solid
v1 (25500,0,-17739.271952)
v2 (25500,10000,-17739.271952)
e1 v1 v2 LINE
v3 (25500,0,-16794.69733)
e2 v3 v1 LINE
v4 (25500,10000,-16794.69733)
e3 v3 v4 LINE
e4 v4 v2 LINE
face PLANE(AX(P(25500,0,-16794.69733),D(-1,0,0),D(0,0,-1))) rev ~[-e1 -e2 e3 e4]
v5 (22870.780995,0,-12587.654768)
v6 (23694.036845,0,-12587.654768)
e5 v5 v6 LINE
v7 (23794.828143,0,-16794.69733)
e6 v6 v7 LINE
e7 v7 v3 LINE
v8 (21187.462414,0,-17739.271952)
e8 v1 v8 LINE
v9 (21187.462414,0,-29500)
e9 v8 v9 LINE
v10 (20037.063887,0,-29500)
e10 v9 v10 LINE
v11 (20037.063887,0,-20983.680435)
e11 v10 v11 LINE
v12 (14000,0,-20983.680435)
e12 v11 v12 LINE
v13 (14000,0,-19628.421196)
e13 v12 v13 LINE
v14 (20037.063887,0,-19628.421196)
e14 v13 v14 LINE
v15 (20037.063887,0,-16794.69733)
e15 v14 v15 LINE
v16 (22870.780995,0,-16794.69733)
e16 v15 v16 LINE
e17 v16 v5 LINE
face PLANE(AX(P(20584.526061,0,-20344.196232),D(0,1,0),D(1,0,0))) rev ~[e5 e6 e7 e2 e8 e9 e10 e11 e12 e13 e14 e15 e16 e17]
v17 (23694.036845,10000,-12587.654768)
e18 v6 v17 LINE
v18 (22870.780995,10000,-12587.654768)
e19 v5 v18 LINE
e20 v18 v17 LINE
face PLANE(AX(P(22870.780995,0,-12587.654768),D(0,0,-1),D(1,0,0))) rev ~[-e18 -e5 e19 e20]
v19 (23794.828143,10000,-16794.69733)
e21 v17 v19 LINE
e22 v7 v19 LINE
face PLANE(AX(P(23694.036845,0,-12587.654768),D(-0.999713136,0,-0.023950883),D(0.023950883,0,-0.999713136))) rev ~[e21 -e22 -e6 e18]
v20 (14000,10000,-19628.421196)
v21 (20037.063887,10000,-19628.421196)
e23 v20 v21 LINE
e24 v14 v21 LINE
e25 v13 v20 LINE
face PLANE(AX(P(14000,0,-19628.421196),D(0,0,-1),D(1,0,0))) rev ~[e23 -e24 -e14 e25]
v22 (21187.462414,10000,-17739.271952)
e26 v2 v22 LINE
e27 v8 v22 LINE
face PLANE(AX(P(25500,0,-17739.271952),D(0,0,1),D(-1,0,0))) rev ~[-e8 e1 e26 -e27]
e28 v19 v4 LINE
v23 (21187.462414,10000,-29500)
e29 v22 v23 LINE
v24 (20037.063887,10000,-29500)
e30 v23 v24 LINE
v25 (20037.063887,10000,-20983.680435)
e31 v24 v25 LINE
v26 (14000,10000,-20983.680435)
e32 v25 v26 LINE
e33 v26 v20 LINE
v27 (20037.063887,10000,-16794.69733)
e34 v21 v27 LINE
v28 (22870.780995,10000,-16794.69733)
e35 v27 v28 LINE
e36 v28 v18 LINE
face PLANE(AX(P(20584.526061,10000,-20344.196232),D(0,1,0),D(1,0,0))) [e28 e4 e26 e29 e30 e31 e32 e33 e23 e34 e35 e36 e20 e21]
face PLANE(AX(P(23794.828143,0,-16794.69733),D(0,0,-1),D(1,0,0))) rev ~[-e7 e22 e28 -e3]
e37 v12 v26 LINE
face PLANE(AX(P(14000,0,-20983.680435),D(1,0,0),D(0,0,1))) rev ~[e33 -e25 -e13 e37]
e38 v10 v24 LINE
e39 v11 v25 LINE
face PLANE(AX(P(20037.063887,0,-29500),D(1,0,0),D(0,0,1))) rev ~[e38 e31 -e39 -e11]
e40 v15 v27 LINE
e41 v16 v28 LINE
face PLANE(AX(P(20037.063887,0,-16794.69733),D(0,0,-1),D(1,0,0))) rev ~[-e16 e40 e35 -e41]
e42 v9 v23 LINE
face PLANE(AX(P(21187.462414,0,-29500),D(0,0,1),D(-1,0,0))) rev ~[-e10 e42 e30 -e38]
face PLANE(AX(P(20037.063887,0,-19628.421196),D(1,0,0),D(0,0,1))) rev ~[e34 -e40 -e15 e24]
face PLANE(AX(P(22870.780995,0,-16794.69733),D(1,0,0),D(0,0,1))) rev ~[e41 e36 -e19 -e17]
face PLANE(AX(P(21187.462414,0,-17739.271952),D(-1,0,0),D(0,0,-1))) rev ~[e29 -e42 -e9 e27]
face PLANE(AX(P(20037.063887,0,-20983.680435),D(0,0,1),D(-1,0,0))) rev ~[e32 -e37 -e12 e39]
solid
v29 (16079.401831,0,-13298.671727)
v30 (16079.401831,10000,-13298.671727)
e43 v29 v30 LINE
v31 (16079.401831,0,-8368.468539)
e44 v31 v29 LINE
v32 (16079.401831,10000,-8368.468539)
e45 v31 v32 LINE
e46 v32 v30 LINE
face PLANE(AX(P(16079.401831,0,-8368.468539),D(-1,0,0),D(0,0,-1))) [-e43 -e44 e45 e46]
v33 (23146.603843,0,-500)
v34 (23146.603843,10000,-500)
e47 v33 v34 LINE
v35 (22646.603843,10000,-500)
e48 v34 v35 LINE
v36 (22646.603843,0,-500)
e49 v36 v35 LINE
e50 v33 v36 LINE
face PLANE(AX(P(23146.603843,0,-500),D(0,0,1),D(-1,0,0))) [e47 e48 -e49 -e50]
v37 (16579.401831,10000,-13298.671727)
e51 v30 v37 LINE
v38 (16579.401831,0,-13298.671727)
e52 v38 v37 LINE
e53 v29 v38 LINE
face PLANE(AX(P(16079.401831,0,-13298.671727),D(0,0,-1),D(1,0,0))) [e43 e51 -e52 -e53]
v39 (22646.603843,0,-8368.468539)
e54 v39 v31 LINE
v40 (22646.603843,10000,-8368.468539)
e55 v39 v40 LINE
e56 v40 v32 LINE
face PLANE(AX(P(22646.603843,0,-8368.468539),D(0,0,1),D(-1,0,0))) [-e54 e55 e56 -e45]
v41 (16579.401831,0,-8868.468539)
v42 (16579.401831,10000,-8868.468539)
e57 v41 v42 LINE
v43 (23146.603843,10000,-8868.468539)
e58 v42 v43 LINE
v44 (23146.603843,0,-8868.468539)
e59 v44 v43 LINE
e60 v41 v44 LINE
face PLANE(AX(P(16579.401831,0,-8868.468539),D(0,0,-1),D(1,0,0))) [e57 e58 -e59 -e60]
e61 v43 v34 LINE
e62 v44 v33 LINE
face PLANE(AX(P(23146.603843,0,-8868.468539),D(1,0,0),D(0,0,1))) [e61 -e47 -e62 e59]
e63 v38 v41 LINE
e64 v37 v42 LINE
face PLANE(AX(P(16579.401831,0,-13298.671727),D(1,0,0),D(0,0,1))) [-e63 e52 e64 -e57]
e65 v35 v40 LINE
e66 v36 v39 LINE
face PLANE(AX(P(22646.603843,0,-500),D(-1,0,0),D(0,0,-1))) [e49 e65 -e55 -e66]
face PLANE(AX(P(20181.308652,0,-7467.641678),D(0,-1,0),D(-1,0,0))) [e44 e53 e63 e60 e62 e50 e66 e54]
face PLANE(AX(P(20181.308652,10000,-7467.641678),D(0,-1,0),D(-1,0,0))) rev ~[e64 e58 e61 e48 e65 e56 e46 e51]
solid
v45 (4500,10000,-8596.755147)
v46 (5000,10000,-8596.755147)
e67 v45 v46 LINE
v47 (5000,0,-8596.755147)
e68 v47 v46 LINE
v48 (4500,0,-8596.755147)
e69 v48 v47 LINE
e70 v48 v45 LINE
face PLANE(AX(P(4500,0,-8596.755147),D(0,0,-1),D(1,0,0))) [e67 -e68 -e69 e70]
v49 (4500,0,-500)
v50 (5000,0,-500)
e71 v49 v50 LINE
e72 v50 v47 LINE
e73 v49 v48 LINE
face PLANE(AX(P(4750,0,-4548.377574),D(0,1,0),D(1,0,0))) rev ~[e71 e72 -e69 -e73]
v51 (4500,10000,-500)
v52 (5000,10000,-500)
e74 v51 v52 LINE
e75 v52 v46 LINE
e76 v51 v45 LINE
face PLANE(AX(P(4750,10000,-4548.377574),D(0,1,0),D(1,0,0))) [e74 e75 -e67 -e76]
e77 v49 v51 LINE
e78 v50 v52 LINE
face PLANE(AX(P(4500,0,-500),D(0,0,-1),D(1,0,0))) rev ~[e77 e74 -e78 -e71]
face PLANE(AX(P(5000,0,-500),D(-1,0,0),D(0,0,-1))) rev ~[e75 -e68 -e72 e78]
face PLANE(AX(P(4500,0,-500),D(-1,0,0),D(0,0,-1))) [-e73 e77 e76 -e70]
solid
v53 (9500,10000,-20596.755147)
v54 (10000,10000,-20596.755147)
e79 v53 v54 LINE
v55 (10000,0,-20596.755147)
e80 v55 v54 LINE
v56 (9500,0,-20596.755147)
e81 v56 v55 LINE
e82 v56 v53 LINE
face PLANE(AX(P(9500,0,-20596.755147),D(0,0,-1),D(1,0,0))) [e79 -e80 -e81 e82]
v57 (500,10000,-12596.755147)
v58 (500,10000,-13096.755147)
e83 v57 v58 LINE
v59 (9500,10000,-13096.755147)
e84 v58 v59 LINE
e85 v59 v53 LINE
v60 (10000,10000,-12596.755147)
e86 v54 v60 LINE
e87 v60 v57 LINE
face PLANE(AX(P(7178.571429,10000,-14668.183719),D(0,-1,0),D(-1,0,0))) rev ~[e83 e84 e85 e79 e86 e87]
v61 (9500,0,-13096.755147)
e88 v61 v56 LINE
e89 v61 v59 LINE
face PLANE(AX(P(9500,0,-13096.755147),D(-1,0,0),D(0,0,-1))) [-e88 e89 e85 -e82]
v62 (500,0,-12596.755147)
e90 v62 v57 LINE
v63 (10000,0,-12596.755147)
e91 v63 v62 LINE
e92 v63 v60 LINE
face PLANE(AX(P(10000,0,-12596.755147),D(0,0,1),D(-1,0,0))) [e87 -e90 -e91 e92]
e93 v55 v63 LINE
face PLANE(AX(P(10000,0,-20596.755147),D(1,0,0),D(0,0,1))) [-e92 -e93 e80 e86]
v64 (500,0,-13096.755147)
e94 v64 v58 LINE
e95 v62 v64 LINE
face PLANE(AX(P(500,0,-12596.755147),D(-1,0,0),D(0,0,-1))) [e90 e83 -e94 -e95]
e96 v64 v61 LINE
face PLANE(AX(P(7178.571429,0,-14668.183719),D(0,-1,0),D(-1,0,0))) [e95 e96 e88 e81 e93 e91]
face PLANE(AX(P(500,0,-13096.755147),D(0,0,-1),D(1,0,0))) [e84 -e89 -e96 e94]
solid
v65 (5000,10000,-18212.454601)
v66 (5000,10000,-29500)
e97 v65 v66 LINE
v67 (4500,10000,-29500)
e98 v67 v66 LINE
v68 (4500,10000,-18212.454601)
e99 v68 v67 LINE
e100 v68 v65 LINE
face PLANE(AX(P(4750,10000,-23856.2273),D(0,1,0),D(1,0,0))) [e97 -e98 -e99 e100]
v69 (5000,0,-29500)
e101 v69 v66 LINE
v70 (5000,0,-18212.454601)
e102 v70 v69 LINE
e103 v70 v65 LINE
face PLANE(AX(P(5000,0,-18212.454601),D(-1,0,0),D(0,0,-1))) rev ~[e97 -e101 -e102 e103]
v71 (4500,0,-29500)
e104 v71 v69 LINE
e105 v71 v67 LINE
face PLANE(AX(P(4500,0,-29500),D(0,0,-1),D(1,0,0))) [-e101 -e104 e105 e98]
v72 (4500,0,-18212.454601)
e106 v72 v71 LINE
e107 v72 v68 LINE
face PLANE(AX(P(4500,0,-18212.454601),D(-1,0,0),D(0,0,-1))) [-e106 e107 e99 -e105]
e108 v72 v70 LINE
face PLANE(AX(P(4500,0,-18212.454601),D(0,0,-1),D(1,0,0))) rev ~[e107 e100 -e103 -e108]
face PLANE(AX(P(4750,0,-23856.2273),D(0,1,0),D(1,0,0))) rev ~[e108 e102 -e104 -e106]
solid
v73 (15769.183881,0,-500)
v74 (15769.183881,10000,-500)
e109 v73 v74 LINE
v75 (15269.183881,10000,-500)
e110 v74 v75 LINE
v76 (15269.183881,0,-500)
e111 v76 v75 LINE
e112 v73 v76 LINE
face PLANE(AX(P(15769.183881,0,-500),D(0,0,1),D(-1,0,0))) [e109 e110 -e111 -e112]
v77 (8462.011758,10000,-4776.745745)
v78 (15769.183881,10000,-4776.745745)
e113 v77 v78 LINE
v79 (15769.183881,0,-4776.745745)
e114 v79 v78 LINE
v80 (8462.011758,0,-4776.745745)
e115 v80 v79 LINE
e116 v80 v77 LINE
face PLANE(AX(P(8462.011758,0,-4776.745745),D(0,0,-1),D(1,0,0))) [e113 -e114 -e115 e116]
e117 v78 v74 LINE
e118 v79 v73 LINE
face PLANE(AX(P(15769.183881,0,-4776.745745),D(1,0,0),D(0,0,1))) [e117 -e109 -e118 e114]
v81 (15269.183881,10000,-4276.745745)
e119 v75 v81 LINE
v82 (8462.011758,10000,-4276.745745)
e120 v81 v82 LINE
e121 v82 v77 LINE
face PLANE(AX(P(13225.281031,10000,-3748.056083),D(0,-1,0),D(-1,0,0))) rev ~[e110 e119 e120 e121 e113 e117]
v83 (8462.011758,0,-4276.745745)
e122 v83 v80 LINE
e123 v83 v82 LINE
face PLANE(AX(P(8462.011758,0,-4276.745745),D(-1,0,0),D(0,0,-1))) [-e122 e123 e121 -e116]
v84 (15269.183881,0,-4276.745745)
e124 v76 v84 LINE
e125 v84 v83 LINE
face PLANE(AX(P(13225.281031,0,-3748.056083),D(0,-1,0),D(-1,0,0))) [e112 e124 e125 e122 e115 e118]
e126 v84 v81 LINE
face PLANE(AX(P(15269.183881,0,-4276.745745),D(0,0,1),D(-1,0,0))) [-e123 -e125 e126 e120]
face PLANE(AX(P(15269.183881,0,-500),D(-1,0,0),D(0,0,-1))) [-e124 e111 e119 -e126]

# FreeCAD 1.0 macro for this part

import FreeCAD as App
import Part
import Sketcher
Q = App.Units.Quantity


def add_polygon(sketch, points):
    """Adds a closed chain of lines whose ends are joined by coincident constraints."""
    first, n = sketch.GeometryCount, len(points)
    for a, b in zip(points, points[1:] + points[:1]):
        sketch.addGeometry(Part.LineSegment(App.Vector(*a, 0), App.Vector(*b, 0)), False)
    for i in range(n):
        sketch.addConstraint(Sketcher.Constraint("Coincident", first + i, 2, first + (i + 1) % n, 1))

doc = App.newDocument("Part")
body = doc.addObject("PartDesign::Body", "Body")

# Sketch on XZ plane
sketch1 = body.newObject("Sketcher::SketchObject", "Sketch")
sketch1.AttachmentSupport = (doc.getObject("XZ_Plane"), [""])
sketch1.MapMode = "FlatFace"
add_polygon(sketch1, [(4500, -8597), (4500, -500), (5000, -500), (5000, -8597)])  # lines 0-3
sketch1.addConstraint(Sketcher.Constraint("Vertical", 0))
sketch1.addConstraint(Sketcher.Constraint("Horizontal", 1))
sketch1.addConstraint(Sketcher.Constraint("Vertical", 2))
sketch1.addConstraint(Sketcher.Constraint("Horizontal", 3))
sketch1.addConstraint(Sketcher.Constraint("DistanceX", 1, 1, 1, 2, Q("500 mm")))
sketch1.addConstraint(Sketcher.Constraint("DistanceX", -1, 1, 0, 2, Q("4500 mm")))
sketch1.addConstraint(Sketcher.Constraint("DistanceY", 0, 2, -1, 1, Q("500 mm")))
sketch1.addConstraint(Sketcher.Constraint("DistanceY", 0, 1, 0, 2, Q("8096.755147 mm")))
pad1 = body.newObject("PartDesign::Pad", "Pad")
pad1.Profile = sketch1
pad1.Length = 10000
pad1.Reversed = True
body2 = doc.addObject("PartDesign::Body", "Body001")

# Sketch on XZ plane
sketch2 = body2.newObject("Sketcher::SketchObject", "Sketch001")
sketch2.AttachmentSupport = (doc.getObject("XZ_Plane001"), [""])
sketch2.MapMode = "FlatFace"
add_polygon(sketch2, [(15769, -4777), (8462, -4777), (8462, -4277), (15269, -4277), (15269, -500), (15769, -500)])  # lines 0-5
sketch2.addConstraint(Sketcher.Constraint("Horizontal", 0))
sketch2.addConstraint(Sketcher.Constraint("Vertical", 1))
sketch2.addConstraint(Sketcher.Constraint("Horizontal", 2))
sketch2.addConstraint(Sketcher.Constraint("Vertical", 3))
sketch2.addConstraint(Sketcher.Constraint("Horizontal", 4))
sketch2.addConstraint(Sketcher.Constraint("Vertical", 5))
sketch2.addConstraint(Sketcher.Constraint("Equal", 4, 1))
sketch2.addConstraint(Sketcher.Constraint("DistanceX", 4, 1, 4, 2, Q("500 mm")))
sketch2.addConstraint(Sketcher.Constraint("DistanceY", 3, 2, -1, 1, Q("500 mm")))
sketch2.addConstraint(Sketcher.Constraint("DistanceX", 0, 2, 0, 1, Q("7307.172123 mm")))
sketch2.addConstraint(Sketcher.Constraint("DistanceY", 3, 1, 3, 2, Q("3776.745745 mm")))
sketch2.addConstraint(Sketcher.Constraint("DistanceX", -1, 1, 2, 2, Q("15269.183881 mm")))
pad2 = body2.newObject("PartDesign::Pad", "Pad001")
pad2.Profile = sketch2
pad2.Length = 10000
pad2.Reversed = True
body3 = doc.addObject("PartDesign::Body", "Body002")

# Sketch on XZ plane
sketch3 = body3.newObject("Sketcher::SketchObject", "Sketch002")
sketch3.AttachmentSupport = (doc.getObject("XZ_Plane002"), [""])
sketch3.MapMode = "FlatFace"
add_polygon(sketch3, [(16579, -8868), (16579, -13299), (16079, -13299), (16079, -8368), (22647, -8368), (22647, -500), (23147, -500), (23147, -8868)])  # lines 0-7
sketch3.addConstraint(Sketcher.Constraint("Vertical", 0))
sketch3.addConstraint(Sketcher.Constraint("Horizontal", 1))
sketch3.addConstraint(Sketcher.Constraint("Vertical", 2))
sketch3.addConstraint(Sketcher.Constraint("Horizontal", 3))
sketch3.addConstraint(Sketcher.Constraint("Vertical", 4))
sketch3.addConstraint(Sketcher.Constraint("Horizontal", 5))
sketch3.addConstraint(Sketcher.Constraint("Vertical", 6))
sketch3.addConstraint(Sketcher.Constraint("Horizontal", 7))
sketch3.addConstraint(Sketcher.Constraint("Equal", 1, 5))
sketch3.addConstraint(Sketcher.Constraint("DistanceX", 1, 2, 1, 1, Q("500 mm")))
sketch3.addConstraint(Sketcher.Constraint("DistanceY", 4, 2, -1, 1, Q("500 mm")))
sketch3.addConstraint(Sketcher.Constraint("DistanceY", 6, 2, 3, 2, Q("500 mm")))
sketch3.addConstraint(Sketcher.Constraint("DistanceY", 0, 2, 0, 1, Q("4430.203188 mm")))
sketch3.addConstraint(Sketcher.Constraint("DistanceY", 4, 1, 4, 2, Q("7868.468539 mm")))
sketch3.addConstraint(Sketcher.Constraint("DistanceX", 3, 1, 3, 2, Q("6567.202012 mm")))
sketch3.addConstraint(Sketcher.Constraint("DistanceX", -1, 1, 0, 2, Q("16579.401831 mm")))
pad3 = body3.newObject("PartDesign::Pad", "Pad002")
pad3.Profile = sketch3
pad3.Length = 10000
pad3.Reversed = True
body4 = doc.addObject("PartDesign::Body", "Body003")

# Sketch on XZ plane
sketch4 = body4.newObject("Sketcher::SketchObject", "Sketch003")
sketch4.AttachmentSupport = (doc.getObject("XZ_Plane003"), [""])
sketch4.MapMode = "FlatFace"
add_polygon(sketch4, [(20037, -29500), (20037, -20984), (14000, -20984), (14000, -19628), (20037, -19628), (20037, -16795), (22871, -16795), (22871, -12588), (23694, -12588), (23795, -16795), (25500, -16795), (25500, -17739), (21187, -17739), (21187, -29500)])  # lines 0-13
sketch4.addConstraint(Sketcher.Constraint("Vertical", 0))
sketch4.addConstraint(Sketcher.Constraint("Horizontal", 1))
sketch4.addConstraint(Sketcher.Constraint("Vertical", 2))
sketch4.addConstraint(Sketcher.Constraint("Horizontal", 3))
sketch4.addConstraint(Sketcher.Constraint("Vertical", 4))
sketch4.addConstraint(Sketcher.Constraint("Horizontal", 5))
sketch4.addConstraint(Sketcher.Constraint("Vertical", 6))
sketch4.addConstraint(Sketcher.Constraint("Horizontal", 7))
sketch4.addConstraint(Sketcher.Constraint("Horizontal", 9))
sketch4.addConstraint(Sketcher.Constraint("Vertical", 10))
sketch4.addConstraint(Sketcher.Constraint("Horizontal", 11))
sketch4.addConstraint(Sketcher.Constraint("Vertical", 12))
sketch4.addConstraint(Sketcher.Constraint("Horizontal", 13))
sketch4.addConstraint(Sketcher.Constraint("Horizontal", 5, 2, 8, 2))
sketch4.addConstraint(Sketcher.Constraint("Vertical", 0, 2, 3, 2))
sketch4.addConstraint(Sketcher.Constraint("DistanceX", -1, 1, 1, 2, Q("14000 mm")))
sketch4.addConstraint(Sketcher.Constraint("DistanceX", -1, 1, 9, 2, Q("25500 mm")))
sketch4.addConstraint(Sketcher.Constraint("DistanceY", 12, 2, -1, 1, Q("29500 mm")))
sketch4.addConstraint(Sketcher.Constraint("DistanceX", 5, 1, 5, 2, Q("2833.717108 mm")))
sketch4.addConstraint(Sketcher.Constraint("DistanceX", 7, 1, 7, 2, Q("823.25585 mm")))
sketch4.addConstraint(Sketcher.Constraint("DistanceY", 2, 1, 2, 2, Q("1355.25924 mm")))
sketch4.addConstraint(Sketcher.Constraint("DistanceY", 10, 2, 10, 1, Q("944.574622 mm")))
sketch4.addConstraint(Sketcher.Constraint("DistanceX", 1, 2, 1, 1, Q("6037.063887 mm")))
sketch4.addConstraint(Sketcher.Constraint("DistanceX", 9, 1, 9, 2, Q("1705.171857 mm")))
sketch4.addConstraint(Sketcher.Constraint("DistanceX", 11, 2, 11, 1, Q("4312.537586 mm")))
sketch4.addConstraint(Sketcher.Constraint("DistanceY", 0, 1, 0, 2, Q("8516.319565 mm")))
sketch4.addConstraint(Sketcher.Constraint("DistanceY", 4, 1, 4, 2, Q("2833.723865 mm")))
sketch4.addConstraint(Sketcher.Constraint("DistanceY", 6, 1, 6, 2, Q("4207.042562 mm")))
pad4 = body4.newObject("PartDesign::Pad", "Pad003")
pad4.Profile = sketch4
pad4.Length = 10000
pad4.Reversed = True
body5 = doc.addObject("PartDesign::Body", "Body004")

# Sketch on XZ plane
sketch5 = body5.newObject("Sketcher::SketchObject", "Sketch004")
sketch5.AttachmentSupport = (doc.getObject("XZ_Plane004"), [""])
sketch5.MapMode = "FlatFace"
add_polygon(sketch5, [(9500, -13097), (500, -13097), (500, -12597), (10000, -12597), (10000, -20597), (9500, -20597)])  # lines 0-5
sketch5.addConstraint(Sketcher.Constraint("Horizontal", 0))
sketch5.addConstraint(Sketcher.Constraint("Vertical", 1))
sketch5.addConstraint(Sketcher.Constraint("Horizontal", 2))
sketch5.addConstraint(Sketcher.Constraint("Vertical", 3))
sketch5.addConstraint(Sketcher.Constraint("Horizontal", 4))
sketch5.addConstraint(Sketcher.Constraint("Vertical", 5))
sketch5.addConstraint(Sketcher.Constraint("Equal", 4, 1))
sketch5.addConstraint(Sketcher.Constraint("DistanceX", 0, 2, 0, 1, Q("9000 mm")))
sketch5.addConstraint(Sketcher.Constraint("DistanceX", 2, 1, 2, 2, Q("9500 mm")))
sketch5.addConstraint(Sketcher.Constraint("DistanceY", 3, 2, 3, 1, Q("8000 mm")))
sketch5.addConstraint(Sketcher.Constraint("DistanceX", -1, 1, 0, 2, Q("500 mm")))
sketch5.addConstraint(Sketcher.Constraint("DistanceY", 0, 2, -1, 1, Q("13096.755147 mm")))
pad5 = body5.newObject("PartDesign::Pad", "Pad004")
pad5.Profile = sketch5
pad5.Length = 10000
pad5.Reversed = True
body6 = doc.addObject("PartDesign::Body", "Body005")

# Sketch on XZ plane
sketch6 = body6.newObject("Sketcher::SketchObject", "Sketch005")
sketch6.AttachmentSupport = (doc.getObject("XZ_Plane005"), [""])
sketch6.MapMode = "FlatFace"
add_polygon(sketch6, [(4500, -29500), (4500, -18212), (5000, -18212), (5000, -29500)])  # lines 0-3
sketch6.addConstraint(Sketcher.Constraint("Vertical", 0))
sketch6.addConstraint(Sketcher.Constraint("Horizontal", 1))
sketch6.addConstraint(Sketcher.Constraint("Vertical", 2))
sketch6.addConstraint(Sketcher.Constraint("Horizontal", 3))
sketch6.addConstraint(Sketcher.Constraint("DistanceX", 1, 1, 1, 2, Q("500 mm")))
sketch6.addConstraint(Sketcher.Constraint("DistanceX", -1, 1, 0, 2, Q("4500 mm")))
sketch6.addConstraint(Sketcher.Constraint("DistanceY", 2, 2, -1, 1, Q("29500 mm")))
sketch6.addConstraint(Sketcher.Constraint("DistanceY", 0, 1, 0, 2, Q("11287.545399 mm")))
pad6 = body6.newObject("PartDesign::Pad", "Pad005")
pad6.Profile = sketch6
pad6.Length = 10000
pad6.Reversed = True

doc.recompute()
